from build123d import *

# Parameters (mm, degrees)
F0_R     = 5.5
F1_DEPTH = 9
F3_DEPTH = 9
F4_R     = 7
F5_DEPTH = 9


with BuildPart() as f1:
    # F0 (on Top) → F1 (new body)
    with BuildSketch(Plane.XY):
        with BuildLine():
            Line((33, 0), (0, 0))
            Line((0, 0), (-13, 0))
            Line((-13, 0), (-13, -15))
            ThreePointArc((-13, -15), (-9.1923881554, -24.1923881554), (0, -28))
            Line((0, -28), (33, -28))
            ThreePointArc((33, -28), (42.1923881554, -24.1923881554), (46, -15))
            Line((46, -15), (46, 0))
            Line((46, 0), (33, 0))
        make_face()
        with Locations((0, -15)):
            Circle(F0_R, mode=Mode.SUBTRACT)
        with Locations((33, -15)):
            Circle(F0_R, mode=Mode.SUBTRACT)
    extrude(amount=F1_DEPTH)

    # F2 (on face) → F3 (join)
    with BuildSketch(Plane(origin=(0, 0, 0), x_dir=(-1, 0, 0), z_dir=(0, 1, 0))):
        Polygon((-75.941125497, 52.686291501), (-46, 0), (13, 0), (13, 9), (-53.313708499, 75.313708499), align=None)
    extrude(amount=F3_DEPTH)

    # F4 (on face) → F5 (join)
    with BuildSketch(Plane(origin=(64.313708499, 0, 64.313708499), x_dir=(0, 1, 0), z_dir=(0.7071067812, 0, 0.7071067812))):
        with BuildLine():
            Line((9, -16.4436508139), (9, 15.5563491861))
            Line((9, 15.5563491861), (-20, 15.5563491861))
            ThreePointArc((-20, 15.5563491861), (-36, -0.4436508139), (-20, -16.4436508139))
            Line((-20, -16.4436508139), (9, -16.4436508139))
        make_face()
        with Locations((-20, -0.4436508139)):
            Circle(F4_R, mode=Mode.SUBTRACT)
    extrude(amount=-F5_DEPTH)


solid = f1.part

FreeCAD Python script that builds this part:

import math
import FreeCAD as App
import Part
import Sketcher

V = App.Vector
Q = App.Units.Quantity

doc = App.newDocument("Part")
body = doc.addObject("PartDesign::Body", "Body")

# Sketch on XY plane
sketch1 = body.newObject("Sketcher::SketchObject", "Sketch")
sketch1.AttachmentSupport = (doc.getObject("XY_Plane"), [""])
sketch1.MapMode = "FlatFace"
sketch1.addGeometry([
    Part.LineSegment(V(-13, 0, 0), V(-13, -15, 0)),  # 0
    Part.ArcOfCircle(Part.Circle(V(0, -15, 0), V(0, 0, 1), 13), math.radians(180), math.radians(270)),  # 1
    Part.LineSegment(V(0, -28, 0), V(33, -28, 0)),  # 2
    Part.ArcOfCircle(Part.Circle(V(33, -15, 0), V(0, 0, 1), 13), math.radians(-90), math.radians(0)),  # 3
    Part.LineSegment(V(46, -15, 0), V(46, 0, 0)),  # 4
    Part.LineSegment(V(46, 0, 0), V(-13, 0, 0)),  # 5
    Part.Circle(V(0, -15, 0), V(0, 0, 1), 6),  # 6
    Part.Circle(V(33, -15, 0), V(0, 0, 1), 6),  # 7
], False)
sketch1.addConstraint([
    Sketcher.Constraint("Tangent", 0, 2, 1, 1),
    Sketcher.Constraint("Tangent", 1, 2, 2, 1),
    Sketcher.Constraint("Tangent", 2, 2, 3, 1),
    Sketcher.Constraint("Tangent", 3, 2, 4, 1),
    Sketcher.Constraint("Coincident", 4, 2, 5, 1),
    Sketcher.Constraint("Coincident", 5, 2, 0, 1),
    Sketcher.Constraint("Vertical", 0),
    Sketcher.Constraint("Horizontal", 2),
    Sketcher.Constraint("Vertical", 4),
    Sketcher.Constraint("Horizontal", 5),
    Sketcher.Constraint("Coincident", 6, 3, 1, 3),
    Sketcher.Constraint("Coincident", 7, 3, 3, 3),
    Sketcher.Constraint("Equal", 1, 3),
    Sketcher.Constraint("Equal", 6, 7),
    Sketcher.Constraint("PointOnObject", 1, 3, -2),
    Sketcher.Constraint("PointOnObject", 4, 2, -1),
    Sketcher.Constraint("Diameter", 6, Q("11 mm")),
    Sketcher.Constraint("Radius", 1, Q("13 mm")),
    Sketcher.Constraint("DistanceX", 2, 1, 2, 2, Q("33 mm")),
    Sketcher.Constraint("DistanceY", 0, 2, 0, 1, Q("15 mm")),
])
pad1 = body.newObject("PartDesign::Pad", "Pad")
pad1.Profile = sketch1
pad1.Length = 9

# Sketch on XZ plane
sketch2 = body.newObject("Sketcher::SketchObject", "Sketch001")
sketch2.AttachmentSupport = (doc.getObject("XZ_Plane"), [""])
sketch2.MapMode = "FlatFace"
sketch2.addGeometry([
    Part.LineSegment(V(76, 53, 0), V(46, 0, 0)),  # 0
    Part.LineSegment(V(46, 0, 0), V(-13, 0, 0)),  # 1
    Part.LineSegment(V(-13, 0, 0), V(-13, 9, 0)),  # 2
    Part.LineSegment(V(-13, 9, 0), V(53, 75, 0)),  # 3
    Part.LineSegment(V(53, 75, 0), V(76, 53, 0)),  # 4
], False)
sketch2.addConstraint([
    Sketcher.Constraint("Coincident", 0, 2, 1, 1),
    Sketcher.Constraint("Coincident", 1, 2, 2, 1),
    Sketcher.Constraint("Coincident", 2, 2, 3, 1),
    Sketcher.Constraint("Coincident", 3, 2, 4, 1),
    Sketcher.Constraint("Coincident", 4, 2, 0, 1),
    Sketcher.Constraint("Horizontal", 1),
    Sketcher.Constraint("Vertical", 2),
    Sketcher.Constraint("PointOnObject", 0, 2, -1),
    Sketcher.Constraint("Perpendicular", 3, 4),
    Sketcher.Constraint("DistanceX", 1, 2, 1, 1, Q("59 mm")),
    Sketcher.Constraint("DistanceY", 2, 1, 2, 2, Q("9 mm")),
    Sketcher.Constraint("Angle", 3, Q("45 deg")),
    Sketcher.Constraint("Distance", 4, Q("32 mm")),
    Sketcher.Constraint("DistanceX", -1, 1, 0, 2, Q("46 mm")),
    Sketcher.Constraint("Distance", 0, Q("60.59964 mm")),
])
pad2 = body.newObject("PartDesign::Pad", "Pad001")
pad2.Profile = sketch2
pad2.Length = 9
pad2.Reversed = True

# Sketch on an angled plane
sketch3 = body.newObject("Sketcher::SketchObject", "Sketch002")
sketch3.Placement = App.Placement(V(64.313708, 0, 64.313708), App.Rotation(V(0, 1, 0), V(-0.707106781, 0, 0.707106781), V(0.707106781, 0, 0.707106781), "ZXY"))
sketch3.addGeometry([
    Part.LineSegment(V(9, -16, 0), V(9, 16, 0)),  # 0
    Part.LineSegment(V(9, 16, 0), V(-20, 16, 0)),  # 1
    Part.ArcOfCircle(Part.Circle(V(-20, 0, 0), V(0, 0, 1), 16), math.radians(90), math.radians(270)),  # 2
    Part.LineSegment(V(-20, -16, 0), V(9, -16, 0)),  # 3
    Part.Circle(V(-20, 0, 0), V(0, 0, 1), 7),  # 4
], False)
sketch3.addConstraint([
    Sketcher.Constraint("Coincident", 0, 2, 1, 1),
    Sketcher.Constraint("Tangent", 1, 2, 2, 1),
    Sketcher.Constraint("Tangent", 2, 2, 3, 1),
    Sketcher.Constraint("Coincident", 3, 2, 0, 1),
    Sketcher.Constraint("Vertical", 0),
    Sketcher.Constraint("Horizontal", 1),
    Sketcher.Constraint("Horizontal", 3),
    Sketcher.Constraint("Coincident", 4, 3, 2, 3),
    Sketcher.Constraint("Diameter", 4, Q("14 mm")),
    Sketcher.Constraint("Radius", 2, Q("16 mm")),
    Sketcher.Constraint("DistanceX", 1, 2, 1, 1, Q("29 mm")),
    Sketcher.Constraint("DistanceX", 2, 3, -1, 1, Q("20 mm")),
    Sketcher.Constraint("DistanceY", 2, 3, -1, 1, Q("0.443651 mm")),
])
pad3 = body.newObject("PartDesign::Pad", "Pad002")
pad3.Profile = sketch3
pad3.Length = 9
pad3.Reversed = True

doc.recompute()
